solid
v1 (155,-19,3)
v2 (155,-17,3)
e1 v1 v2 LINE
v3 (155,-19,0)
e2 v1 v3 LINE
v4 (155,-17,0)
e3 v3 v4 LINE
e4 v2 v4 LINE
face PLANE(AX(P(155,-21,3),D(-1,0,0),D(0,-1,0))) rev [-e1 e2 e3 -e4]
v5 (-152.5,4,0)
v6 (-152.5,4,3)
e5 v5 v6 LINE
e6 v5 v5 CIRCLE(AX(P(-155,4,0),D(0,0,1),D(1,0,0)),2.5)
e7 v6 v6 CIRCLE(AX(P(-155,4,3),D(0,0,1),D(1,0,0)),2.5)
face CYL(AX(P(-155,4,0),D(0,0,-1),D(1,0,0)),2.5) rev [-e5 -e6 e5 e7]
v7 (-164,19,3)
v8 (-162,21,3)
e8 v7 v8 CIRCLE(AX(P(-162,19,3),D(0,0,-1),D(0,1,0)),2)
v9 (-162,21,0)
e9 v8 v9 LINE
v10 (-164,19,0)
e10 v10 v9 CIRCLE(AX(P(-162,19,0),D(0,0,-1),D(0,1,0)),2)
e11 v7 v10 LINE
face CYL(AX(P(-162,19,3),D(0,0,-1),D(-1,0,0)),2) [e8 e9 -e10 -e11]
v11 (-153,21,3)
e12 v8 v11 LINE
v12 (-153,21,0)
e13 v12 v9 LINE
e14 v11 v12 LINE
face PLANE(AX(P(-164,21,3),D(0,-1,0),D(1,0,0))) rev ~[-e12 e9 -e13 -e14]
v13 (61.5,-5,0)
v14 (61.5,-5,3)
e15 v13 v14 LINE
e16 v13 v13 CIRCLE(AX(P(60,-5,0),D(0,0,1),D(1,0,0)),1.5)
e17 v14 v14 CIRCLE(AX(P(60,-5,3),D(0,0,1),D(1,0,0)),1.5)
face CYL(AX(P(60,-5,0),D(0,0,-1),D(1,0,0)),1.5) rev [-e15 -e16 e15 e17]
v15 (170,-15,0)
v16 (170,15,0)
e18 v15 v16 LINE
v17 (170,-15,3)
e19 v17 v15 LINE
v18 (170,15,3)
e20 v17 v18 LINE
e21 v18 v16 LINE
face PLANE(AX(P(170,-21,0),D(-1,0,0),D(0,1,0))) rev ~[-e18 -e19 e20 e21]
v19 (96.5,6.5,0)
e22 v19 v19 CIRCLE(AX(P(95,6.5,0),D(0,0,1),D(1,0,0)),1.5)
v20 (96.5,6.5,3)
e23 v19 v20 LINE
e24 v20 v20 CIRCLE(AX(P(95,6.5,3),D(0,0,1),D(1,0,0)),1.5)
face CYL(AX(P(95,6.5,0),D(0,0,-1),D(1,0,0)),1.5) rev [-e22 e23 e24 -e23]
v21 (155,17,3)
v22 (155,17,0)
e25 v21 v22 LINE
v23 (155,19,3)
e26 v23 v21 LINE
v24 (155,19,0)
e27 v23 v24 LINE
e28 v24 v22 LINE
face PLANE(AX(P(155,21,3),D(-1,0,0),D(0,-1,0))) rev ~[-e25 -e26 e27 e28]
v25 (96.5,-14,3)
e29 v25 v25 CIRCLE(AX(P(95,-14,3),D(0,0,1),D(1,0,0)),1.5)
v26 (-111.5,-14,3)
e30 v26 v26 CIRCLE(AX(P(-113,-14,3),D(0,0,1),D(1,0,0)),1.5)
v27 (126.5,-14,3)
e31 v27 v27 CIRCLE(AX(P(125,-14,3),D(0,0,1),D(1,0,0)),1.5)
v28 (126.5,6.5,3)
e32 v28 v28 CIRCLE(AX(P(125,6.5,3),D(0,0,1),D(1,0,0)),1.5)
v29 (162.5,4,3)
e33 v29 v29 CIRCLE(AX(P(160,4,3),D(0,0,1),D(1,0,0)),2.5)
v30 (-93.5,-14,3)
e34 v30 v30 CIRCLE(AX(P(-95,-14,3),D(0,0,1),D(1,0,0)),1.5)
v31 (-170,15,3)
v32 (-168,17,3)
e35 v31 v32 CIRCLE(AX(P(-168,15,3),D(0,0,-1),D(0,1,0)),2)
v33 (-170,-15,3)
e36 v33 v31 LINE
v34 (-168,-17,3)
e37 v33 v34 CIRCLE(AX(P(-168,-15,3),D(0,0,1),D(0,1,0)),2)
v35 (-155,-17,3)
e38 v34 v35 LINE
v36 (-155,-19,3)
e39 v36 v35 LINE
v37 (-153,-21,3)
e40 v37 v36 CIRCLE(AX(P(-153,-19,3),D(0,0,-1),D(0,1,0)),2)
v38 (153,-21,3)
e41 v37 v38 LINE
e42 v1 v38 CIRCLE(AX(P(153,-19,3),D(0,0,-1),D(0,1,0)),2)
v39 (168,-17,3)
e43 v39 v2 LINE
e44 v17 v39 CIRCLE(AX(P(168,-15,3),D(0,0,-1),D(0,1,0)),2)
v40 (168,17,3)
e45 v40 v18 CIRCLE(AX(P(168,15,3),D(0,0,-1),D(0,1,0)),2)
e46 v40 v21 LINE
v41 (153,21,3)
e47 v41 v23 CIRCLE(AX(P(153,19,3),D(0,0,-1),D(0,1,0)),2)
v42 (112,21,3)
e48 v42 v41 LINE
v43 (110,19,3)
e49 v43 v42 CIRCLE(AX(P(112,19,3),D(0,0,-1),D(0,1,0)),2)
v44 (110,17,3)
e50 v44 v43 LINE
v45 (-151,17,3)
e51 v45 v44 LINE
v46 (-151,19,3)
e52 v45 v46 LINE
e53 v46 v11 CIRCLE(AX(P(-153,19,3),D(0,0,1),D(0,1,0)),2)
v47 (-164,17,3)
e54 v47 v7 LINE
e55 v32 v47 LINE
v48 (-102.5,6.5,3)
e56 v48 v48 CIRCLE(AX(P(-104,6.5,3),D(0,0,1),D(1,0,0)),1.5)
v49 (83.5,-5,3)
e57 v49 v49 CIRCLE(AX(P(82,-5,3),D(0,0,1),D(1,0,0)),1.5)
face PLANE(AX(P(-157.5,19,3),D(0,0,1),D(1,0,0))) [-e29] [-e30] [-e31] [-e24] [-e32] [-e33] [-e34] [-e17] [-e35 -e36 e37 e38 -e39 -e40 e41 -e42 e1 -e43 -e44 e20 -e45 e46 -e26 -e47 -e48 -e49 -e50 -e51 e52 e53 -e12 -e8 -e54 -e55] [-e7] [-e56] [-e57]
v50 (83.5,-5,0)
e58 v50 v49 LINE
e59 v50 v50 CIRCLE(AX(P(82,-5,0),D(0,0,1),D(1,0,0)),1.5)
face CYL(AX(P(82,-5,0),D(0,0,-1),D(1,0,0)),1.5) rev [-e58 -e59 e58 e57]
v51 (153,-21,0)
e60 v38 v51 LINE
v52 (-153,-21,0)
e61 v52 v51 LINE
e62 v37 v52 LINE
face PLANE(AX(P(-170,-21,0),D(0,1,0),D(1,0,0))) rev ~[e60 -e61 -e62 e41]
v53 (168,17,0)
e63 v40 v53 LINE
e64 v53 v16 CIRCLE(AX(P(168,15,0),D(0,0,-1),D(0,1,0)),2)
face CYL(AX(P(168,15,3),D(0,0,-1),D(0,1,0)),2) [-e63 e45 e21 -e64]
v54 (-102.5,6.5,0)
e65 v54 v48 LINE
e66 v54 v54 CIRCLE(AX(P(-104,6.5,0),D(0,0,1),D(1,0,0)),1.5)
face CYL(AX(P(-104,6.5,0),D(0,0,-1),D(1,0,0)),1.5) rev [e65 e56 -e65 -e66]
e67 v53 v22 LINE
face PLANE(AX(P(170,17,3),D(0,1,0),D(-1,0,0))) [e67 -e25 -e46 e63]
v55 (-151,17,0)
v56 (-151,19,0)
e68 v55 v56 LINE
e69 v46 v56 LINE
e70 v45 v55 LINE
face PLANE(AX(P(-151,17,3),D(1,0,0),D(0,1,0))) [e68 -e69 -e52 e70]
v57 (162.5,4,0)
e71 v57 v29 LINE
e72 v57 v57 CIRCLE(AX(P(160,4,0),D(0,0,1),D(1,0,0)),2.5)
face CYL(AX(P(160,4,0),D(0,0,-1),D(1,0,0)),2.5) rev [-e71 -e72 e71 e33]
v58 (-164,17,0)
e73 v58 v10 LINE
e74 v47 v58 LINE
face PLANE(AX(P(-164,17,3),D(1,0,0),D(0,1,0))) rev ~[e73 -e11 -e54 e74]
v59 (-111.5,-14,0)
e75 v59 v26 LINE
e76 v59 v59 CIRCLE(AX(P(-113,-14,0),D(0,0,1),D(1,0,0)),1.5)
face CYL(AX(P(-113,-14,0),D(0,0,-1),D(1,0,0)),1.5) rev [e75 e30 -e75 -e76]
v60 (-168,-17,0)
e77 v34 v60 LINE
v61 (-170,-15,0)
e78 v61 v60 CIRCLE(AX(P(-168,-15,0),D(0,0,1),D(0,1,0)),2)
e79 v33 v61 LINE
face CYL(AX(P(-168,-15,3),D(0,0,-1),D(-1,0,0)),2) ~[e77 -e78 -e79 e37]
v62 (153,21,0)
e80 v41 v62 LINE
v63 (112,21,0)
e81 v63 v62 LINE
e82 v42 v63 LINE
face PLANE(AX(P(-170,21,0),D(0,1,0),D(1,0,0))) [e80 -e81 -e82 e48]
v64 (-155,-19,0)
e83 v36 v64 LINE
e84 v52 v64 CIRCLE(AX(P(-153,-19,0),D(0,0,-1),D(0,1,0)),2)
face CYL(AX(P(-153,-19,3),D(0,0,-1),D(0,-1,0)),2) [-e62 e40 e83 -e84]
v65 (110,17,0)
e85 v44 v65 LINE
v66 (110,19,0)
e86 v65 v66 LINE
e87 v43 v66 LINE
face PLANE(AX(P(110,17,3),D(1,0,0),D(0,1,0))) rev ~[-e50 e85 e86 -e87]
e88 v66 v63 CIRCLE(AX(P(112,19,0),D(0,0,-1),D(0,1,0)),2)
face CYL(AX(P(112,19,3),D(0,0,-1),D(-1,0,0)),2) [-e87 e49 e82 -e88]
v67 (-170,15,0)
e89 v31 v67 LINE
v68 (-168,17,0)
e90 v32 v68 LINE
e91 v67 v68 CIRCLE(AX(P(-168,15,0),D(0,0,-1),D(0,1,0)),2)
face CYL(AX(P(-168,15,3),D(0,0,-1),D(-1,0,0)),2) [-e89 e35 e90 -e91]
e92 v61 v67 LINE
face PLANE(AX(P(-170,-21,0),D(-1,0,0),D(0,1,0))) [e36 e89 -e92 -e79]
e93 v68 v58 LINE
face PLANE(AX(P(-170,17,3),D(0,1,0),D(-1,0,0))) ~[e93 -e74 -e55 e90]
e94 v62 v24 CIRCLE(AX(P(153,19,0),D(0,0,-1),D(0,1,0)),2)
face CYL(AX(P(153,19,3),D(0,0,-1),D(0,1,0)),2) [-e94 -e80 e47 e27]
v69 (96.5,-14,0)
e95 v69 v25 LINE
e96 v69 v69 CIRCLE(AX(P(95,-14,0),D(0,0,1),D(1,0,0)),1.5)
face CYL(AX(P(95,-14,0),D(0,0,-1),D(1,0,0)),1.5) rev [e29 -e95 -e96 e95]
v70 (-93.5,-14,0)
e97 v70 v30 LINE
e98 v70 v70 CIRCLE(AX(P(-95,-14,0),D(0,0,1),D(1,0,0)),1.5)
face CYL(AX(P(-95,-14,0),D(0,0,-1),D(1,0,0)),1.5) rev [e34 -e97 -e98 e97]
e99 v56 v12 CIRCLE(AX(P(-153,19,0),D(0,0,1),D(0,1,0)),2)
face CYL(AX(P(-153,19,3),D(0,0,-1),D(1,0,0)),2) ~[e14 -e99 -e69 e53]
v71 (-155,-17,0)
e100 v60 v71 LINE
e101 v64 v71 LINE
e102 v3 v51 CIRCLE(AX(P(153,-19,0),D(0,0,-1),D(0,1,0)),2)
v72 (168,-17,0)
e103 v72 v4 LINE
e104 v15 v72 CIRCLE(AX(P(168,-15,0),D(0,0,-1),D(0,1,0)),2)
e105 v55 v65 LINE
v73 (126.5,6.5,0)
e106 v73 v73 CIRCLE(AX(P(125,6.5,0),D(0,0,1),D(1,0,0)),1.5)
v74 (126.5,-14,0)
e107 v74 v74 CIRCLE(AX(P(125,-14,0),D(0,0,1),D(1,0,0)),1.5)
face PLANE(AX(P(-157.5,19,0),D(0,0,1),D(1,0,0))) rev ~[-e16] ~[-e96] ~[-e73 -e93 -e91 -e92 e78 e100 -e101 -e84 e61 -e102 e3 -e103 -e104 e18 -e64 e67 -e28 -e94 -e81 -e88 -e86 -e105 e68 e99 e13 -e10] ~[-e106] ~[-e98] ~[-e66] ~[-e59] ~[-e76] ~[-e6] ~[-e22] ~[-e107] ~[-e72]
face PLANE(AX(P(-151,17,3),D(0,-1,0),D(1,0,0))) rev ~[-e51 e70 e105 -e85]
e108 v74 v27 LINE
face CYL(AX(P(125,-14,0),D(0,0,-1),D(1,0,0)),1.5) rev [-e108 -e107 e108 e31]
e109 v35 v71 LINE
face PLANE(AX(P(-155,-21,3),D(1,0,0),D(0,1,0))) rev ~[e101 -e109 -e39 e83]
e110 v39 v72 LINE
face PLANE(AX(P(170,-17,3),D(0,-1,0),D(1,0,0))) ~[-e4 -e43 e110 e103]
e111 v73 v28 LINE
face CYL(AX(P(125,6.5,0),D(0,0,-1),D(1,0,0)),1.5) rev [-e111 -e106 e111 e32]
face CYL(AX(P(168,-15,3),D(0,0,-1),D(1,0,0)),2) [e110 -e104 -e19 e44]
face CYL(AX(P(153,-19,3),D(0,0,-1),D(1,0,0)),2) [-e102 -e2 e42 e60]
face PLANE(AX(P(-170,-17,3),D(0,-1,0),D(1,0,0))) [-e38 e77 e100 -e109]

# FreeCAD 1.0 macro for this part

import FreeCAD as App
import Part
import Sketcher
from FreeCAD import Vector
Q = App.Units.Quantity


def edges_at(feature, points):
    """Names of the edges that pass closest to the given points."""
    edges = feature.Shape.Edges
    near = lambda p: min(range(len(edges)), key=lambda i: edges[i].distToShape(Part.Vertex(*p))[0])
    return sorted({f"Edge{near(p) + 1}" for p in points})


def add_polygon(sketch, points):
    """Adds a closed chain of lines whose ends are joined by coincident constraints."""
    first, n = sketch.GeometryCount, len(points)
    for a, b in zip(points, points[1:] + points[:1]):
        sketch.addGeometry(Part.LineSegment(App.Vector(*a, 0), App.Vector(*b, 0)), False)
    for i in range(n):
        sketch.addConstraint(Sketcher.Constraint("Coincident", first + i, 2, first + (i + 1) % n, 1))

doc = App.newDocument("Part")
body = doc.addObject("PartDesign::Body", "Body")

sketch1 = body.newObject("Sketcher::SketchObject", "Sketch")
sketch1.AttachmentSupport = (doc.getObject("XY_Plane"), [""])
sketch1.MapMode = "FlatFace"
add_polygon(sketch1, [(-170, 21), (-170, -21), (170, -21), (170, 21)])
sketch1.addGeometry(Part.Circle(Vector(-113, -14, 0), Vector(0, 0, 1), 1.5), False)
sketch1.addGeometry(Part.Circle(Vector(-95, -14, 0), Vector(0, 0, 1), 1.5), False)
sketch1.addGeometry(Part.Circle(Vector(95, -14, 0), Vector(0, 0, 1), 1.5), False)
sketch1.addGeometry(Part.Circle(Vector(125, -14, 0), Vector(0, 0, 1), 1.5), False)
sketch1.addGeometry(Part.Circle(Vector(60, -5, 0), Vector(0, 0, 1), 1.5), False)
sketch1.addGeometry(Part.Circle(Vector(82, -5, 0), Vector(0, 0, 1), 1.5), False)
sketch1.addGeometry(Part.Circle(Vector(-155, 4, 0), Vector(0, 0, 1), 2.5), False)
sketch1.addGeometry(Part.Circle(Vector(-104, 6.5, 0), Vector(0, 0, 1), 1.5), False)
sketch1.addGeometry(Part.Circle(Vector(160, 4, 0), Vector(0, 0, 1), 2.5), False)
sketch1.addGeometry(Part.Circle(Vector(95, 6.5, 0), Vector(0, 0, 1), 1.5), False)
sketch1.addGeometry(Part.Circle(Vector(125, 6.5, 0), Vector(0, 0, 1), 1.5), False)
sketch1.addConstraint([
    Sketcher.Constraint("Vertical", 0),
    Sketcher.Constraint("Horizontal", 1),
    Sketcher.Constraint("Vertical", 2),
    Sketcher.Constraint("Horizontal", 3),
    Sketcher.Constraint("Equal", 4, 5),
    Sketcher.Constraint("Equal", 5, 6),
    Sketcher.Constraint("Equal", 6, 7),
    Sketcher.Constraint("Equal", 7, 8),
    Sketcher.Constraint("Equal", 8, 9),
    Sketcher.Constraint("Equal", 9, 11),
    Sketcher.Constraint("Equal", 10, 12),
    Sketcher.Constraint("Equal", 11, 13),
    Sketcher.Constraint("Equal", 13, 14),
    Sketcher.Constraint("Symmetric", 0, 2, 2, 2, -1, 1),
    Sketcher.Constraint("Symmetric", 5, 3, 6, 3, -2),
    Sketcher.Constraint("Horizontal", 4, 3, 5, 3),
    Sketcher.Constraint("Horizontal", 6, 3, 7, 3),
    Sketcher.Constraint("Horizontal", 8, 3, 9, 3),
    Sketcher.Constraint("Horizontal", 10, 3, 12, 3),
    Sketcher.Constraint("Horizontal", 11, 3, 13, 3),
    Sketcher.Constraint("Horizontal", 13, 3, 14, 3),
    Sketcher.Constraint("Vertical", 6, 3, 13, 3),
    Sketcher.Constraint("Vertical", 7, 3, 14, 3),
    Sketcher.Constraint("Diameter", 4, Q("3 mm")),
    Sketcher.Constraint("Diameter", 10, Q("5 mm")),
    Sketcher.Constraint("DistanceX", 1, 1, 1, 2, Q("340 mm")),
    Sketcher.Constraint("DistanceY", 0, 2, 0, 1, Q("42 mm")),
    Sketcher.Constraint("DistanceX", 4, 3, -1, 1, Q("113 mm")),
    Sketcher.Constraint("DistanceY", 4, 3, -1, 1, Q("14 mm")),
    Sketcher.Constraint("DistanceX", 5, 3, -1, 1, Q("95 mm")),
    Sketcher.Constraint("DistanceX", -1, 1, 7, 3, Q("125 mm")),
    Sketcher.Constraint("DistanceX", -1, 1, 8, 3, Q("60 mm")),
    Sketcher.Constraint("DistanceY", 8, 3, -1, 1, Q("5 mm")),
    Sketcher.Constraint("DistanceX", -1, 1, 9, 3, Q("82 mm")),
    Sketcher.Constraint("DistanceX", 10, 3, -1, 1, Q("155 mm")),
    Sketcher.Constraint("DistanceY", -1, 1, 10, 3, Q("4 mm")),
    Sketcher.Constraint("DistanceX", 11, 3, -1, 1, Q("104 mm")),
    Sketcher.Constraint("DistanceX", -1, 1, 12, 3, Q("160 mm")),
    Sketcher.Constraint("DistanceY", -1, 1, 11, 3, Q("6.5 mm")),
])
pad1 = body.newObject("PartDesign::Pad", "Pad")
pad1.Profile = sketch1
pad1.Length = 3

sketch2 = body.newObject("Sketcher::SketchObject", "Sketch001")
sketch2.AttachmentSupport = (doc.getObject("XY_Plane"), [""])
sketch2.MapMode = "FlatFace"
sketch2.AttachmentOffset = App.Placement(Vector(0, 0, 3), App.Rotation())
add_polygon(sketch2, [(-170, -17), (-170, -21), (-155, -21), (-155, -17)])
sketch2.addConstraint([
    Sketcher.Constraint("Vertical", 0),
    Sketcher.Constraint("Horizontal", 1),
    Sketcher.Constraint("Vertical", 2),
    Sketcher.Constraint("Horizontal", 3),
    Sketcher.Constraint("DistanceX", 1, 1, 1, 2, Q("15 mm")),
    Sketcher.Constraint("DistanceY", 0, 2, 0, 1, Q("4 mm")),
    Sketcher.Constraint("DistanceX", 0, 2, -1, 1, Q("170 mm")),
    Sketcher.Constraint("DistanceY", 0, 2, -1, 1, Q("21 mm")),
])
pocket1 = body.newObject("PartDesign::Pocket", "Pocket")
pocket1.Profile = sketch2
pocket1.Type = "ThroughAll"
doc.recompute()

mirrored = body.newObject("PartDesign::Mirrored", "Mirrored")
mirrored.Originals = [pocket1]
mirrored.MirrorPlane = (doc.getObject("XZ_Plane"), [""])
body.Tip = mirrored
doc.recompute()

mirrored2 = body.newObject("PartDesign::Mirrored", "Mirrored001")
mirrored2.Originals = [pocket1]
mirrored2.MirrorPlane = (doc.getObject("YZ_Plane"), [""])
body.Tip = mirrored2

sketch3 = body.newObject("Sketcher::SketchObject", "Sketch002")
sketch3.AttachmentSupport = (doc.getObject("XY_Plane"), [""])
sketch3.MapMode = "FlatFace"
sketch3.AttachmentOffset = App.Placement(Vector(0, 0, 3), App.Rotation())
add_polygon(sketch3, [(170, 17), (170, 21), (155, 21), (155, 17)])
sketch3.addConstraint([
    Sketcher.Constraint("Vertical", 0),
    Sketcher.Constraint("Horizontal", 1),
    Sketcher.Constraint("Vertical", 2),
    Sketcher.Constraint("Horizontal", 3),
    Sketcher.Constraint("DistanceX", 1, 2, 1, 1, Q("15 mm")),
    Sketcher.Constraint("DistanceY", 0, 1, 0, 2, Q("4 mm")),
    Sketcher.Constraint("DistanceX", -1, 1, 0, 2, Q("170 mm")),
    Sketcher.Constraint("DistanceY", -1, 1, 0, 2, Q("21 mm")),
])
pocket2 = body.newObject("PartDesign::Pocket", "Pocket001")
pocket2.Profile = sketch3
pocket2.Type = "ThroughAll"
doc.recompute()

fillet = body.newObject("PartDesign::Fillet", "Fillet")
fillet.Base = (pocket2, edges_at(pocket2, [
    (170, 17, 1.5),
    (155, 21, 1.5),
    (-170, -17, 1.5),
    (-155, -21, 1.5),
    (170, -17, 1.5),
    (155, -21, 1.5),
    (-170, 17, 1.5),
]))
fillet.Radius = 2

sketch4 = body.newObject("Sketcher::SketchObject", "Sketch003")
sketch4.AttachmentSupport = (doc.getObject("XY_Plane"), [""])
sketch4.MapMode = "FlatFace"
sketch4.AttachmentOffset = App.Placement(Vector(0, 0, 3), App.Rotation())
add_polygon(sketch4, [(-151, 29), (-151, 17), (110, 17), (110, 29)])
sketch4.addConstraint([
    Sketcher.Constraint("Vertical", 0),
    Sketcher.Constraint("Horizontal", 1),
    Sketcher.Constraint("Vertical", 2),
    Sketcher.Constraint("Horizontal", 3),
    Sketcher.Constraint("DistanceX", 1, 1, 1, 2, Q("261 mm")),
    Sketcher.Constraint("DistanceX", 0, 2, -1, 1, Q("151 mm")),
    Sketcher.Constraint("DistanceY", -1, 1, 0, 2, Q("17 mm")),
    Sketcher.Constraint("DistanceY", 0, 2, 0, 1, Q("11.873622 mm")),
])
pocket3 = body.newObject("PartDesign::Pocket", "Pocket002")
pocket3.Profile = sketch4
pocket3.Type = "ThroughAll"

sketch5 = body.newObject("Sketcher::SketchObject", "Sketch004")
sketch5.AttachmentSupport = (doc.getObject("XY_Plane"), [""])
sketch5.MapMode = "FlatFace"
sketch5.AttachmentOffset = App.Placement(Vector(0, 0, 3), App.Rotation())
add_polygon(sketch5, [(-164, 21), (-164, 17), (-151, 17), (-151, 21)])
sketch5.addConstraint([
    Sketcher.Constraint("Vertical", 0),
    Sketcher.Constraint("Horizontal", 1),
    Sketcher.Constraint("Vertical", 2),
    Sketcher.Constraint("Horizontal", 3),
    Sketcher.Constraint("DistanceX", 1, 1, 1, 2, Q("13 mm")),
    Sketcher.Constraint("DistanceY", 0, 2, 0, 1, Q("4 mm")),
    Sketcher.Constraint("DistanceX", 0, 2, -1, 1, Q("164 mm")),
    Sketcher.Constraint("DistanceY", -1, 1, 0, 2, Q("17 mm")),
])
pad2 = body.newObject("PartDesign::Pad", "Pad001")
pad2.Profile = sketch5
pad2.Length = 3
pad2.Reversed = True
doc.recompute()

fillet2 = body.newObject("PartDesign::Fillet", "Fillet001")
fillet2.Base = (pad2, edges_at(pad2, [(110, 21, 1.5), (-151, 21, 1.5), (-164, 21, 1.5)]))
fillet2.Radius = 2

doc.recompute()
